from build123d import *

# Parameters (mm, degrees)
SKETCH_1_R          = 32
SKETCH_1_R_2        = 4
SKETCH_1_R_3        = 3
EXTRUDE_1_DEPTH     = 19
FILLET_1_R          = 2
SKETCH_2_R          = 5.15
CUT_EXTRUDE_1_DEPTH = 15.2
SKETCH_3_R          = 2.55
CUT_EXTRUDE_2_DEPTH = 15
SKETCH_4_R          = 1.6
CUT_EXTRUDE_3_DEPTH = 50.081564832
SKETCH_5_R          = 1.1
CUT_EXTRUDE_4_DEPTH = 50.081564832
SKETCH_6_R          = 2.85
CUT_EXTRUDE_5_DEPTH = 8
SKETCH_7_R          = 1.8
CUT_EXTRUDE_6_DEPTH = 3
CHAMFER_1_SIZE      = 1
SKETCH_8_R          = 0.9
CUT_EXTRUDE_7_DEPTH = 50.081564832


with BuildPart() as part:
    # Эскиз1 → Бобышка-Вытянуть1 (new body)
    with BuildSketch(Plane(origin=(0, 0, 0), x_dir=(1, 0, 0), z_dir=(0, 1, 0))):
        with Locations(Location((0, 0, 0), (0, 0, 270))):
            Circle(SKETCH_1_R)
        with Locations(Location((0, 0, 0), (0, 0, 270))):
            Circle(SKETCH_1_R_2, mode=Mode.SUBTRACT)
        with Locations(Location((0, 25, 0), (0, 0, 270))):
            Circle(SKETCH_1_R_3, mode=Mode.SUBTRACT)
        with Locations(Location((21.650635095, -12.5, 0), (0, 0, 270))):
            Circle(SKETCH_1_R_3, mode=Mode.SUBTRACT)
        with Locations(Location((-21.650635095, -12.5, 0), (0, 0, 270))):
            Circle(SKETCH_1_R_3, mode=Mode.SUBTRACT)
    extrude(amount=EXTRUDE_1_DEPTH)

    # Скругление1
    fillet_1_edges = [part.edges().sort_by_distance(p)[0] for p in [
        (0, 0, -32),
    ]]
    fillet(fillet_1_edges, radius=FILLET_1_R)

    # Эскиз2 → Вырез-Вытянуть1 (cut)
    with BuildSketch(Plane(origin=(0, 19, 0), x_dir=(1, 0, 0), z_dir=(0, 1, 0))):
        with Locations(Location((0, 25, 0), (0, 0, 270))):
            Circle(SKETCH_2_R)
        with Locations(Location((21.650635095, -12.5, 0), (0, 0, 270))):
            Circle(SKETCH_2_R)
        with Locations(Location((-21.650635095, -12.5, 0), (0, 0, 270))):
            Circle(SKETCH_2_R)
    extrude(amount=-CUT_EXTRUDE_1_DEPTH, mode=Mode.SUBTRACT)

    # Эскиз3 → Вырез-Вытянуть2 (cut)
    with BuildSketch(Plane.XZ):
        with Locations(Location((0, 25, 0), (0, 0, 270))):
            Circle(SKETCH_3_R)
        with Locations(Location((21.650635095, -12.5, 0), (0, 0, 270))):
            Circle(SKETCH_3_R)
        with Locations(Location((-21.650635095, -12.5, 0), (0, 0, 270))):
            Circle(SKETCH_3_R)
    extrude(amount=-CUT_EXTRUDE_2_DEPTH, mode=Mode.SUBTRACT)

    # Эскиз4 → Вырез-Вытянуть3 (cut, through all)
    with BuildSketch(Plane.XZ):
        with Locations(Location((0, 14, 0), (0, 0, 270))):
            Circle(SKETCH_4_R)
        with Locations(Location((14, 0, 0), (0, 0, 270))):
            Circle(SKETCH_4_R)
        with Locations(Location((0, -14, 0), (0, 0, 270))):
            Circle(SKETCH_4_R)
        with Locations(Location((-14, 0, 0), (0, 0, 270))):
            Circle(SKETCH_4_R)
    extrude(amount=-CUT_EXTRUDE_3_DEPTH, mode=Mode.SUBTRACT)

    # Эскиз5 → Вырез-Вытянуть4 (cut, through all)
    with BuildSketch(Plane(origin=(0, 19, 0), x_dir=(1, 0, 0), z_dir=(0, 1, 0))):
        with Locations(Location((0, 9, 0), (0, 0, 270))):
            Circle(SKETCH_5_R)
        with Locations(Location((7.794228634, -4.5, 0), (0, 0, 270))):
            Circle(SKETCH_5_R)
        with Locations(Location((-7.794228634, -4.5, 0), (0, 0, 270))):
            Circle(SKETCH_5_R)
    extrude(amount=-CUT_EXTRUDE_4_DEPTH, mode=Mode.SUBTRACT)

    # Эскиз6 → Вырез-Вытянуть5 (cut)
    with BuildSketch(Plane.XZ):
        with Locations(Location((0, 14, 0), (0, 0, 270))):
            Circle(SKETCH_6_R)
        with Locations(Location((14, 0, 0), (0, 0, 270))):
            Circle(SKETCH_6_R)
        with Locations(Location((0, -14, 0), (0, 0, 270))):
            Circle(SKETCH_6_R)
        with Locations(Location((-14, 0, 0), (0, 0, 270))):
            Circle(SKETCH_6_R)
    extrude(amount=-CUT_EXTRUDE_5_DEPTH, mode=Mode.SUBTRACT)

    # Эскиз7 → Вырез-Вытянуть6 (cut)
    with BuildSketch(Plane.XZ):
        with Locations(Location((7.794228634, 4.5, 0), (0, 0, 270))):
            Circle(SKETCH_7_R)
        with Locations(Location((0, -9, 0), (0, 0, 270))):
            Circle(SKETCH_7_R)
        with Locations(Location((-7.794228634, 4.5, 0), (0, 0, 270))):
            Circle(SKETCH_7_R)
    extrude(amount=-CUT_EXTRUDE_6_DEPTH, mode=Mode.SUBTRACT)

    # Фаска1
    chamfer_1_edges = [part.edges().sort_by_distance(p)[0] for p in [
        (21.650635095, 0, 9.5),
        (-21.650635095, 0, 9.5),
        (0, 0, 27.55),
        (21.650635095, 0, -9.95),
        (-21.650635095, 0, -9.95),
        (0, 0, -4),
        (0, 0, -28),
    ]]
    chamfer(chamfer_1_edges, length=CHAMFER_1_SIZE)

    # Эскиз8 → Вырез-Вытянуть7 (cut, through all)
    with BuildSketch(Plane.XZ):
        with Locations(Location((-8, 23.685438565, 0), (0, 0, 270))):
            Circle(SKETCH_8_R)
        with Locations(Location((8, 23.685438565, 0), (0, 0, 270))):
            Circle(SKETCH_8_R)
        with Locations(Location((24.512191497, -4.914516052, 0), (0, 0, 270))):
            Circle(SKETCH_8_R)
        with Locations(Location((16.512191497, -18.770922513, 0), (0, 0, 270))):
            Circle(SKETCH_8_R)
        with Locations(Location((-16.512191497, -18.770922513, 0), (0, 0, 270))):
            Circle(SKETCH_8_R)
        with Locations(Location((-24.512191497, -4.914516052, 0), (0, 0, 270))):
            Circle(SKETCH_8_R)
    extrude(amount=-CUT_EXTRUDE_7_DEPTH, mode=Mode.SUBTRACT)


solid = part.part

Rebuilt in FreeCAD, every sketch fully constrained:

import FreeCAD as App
import Part
import Sketcher
Q = App.Units.Quantity


def edges_at(feature, points):
    """Names of the edges that pass closest to the given points."""
    edges = feature.Shape.Edges
    near = lambda p: min(range(len(edges)), key=lambda i: edges[i].distToShape(Part.Vertex(*p))[0])
    return sorted({f"Edge{near(p) + 1}" for p in points})

doc = App.newDocument("Part")
params = doc.addObject("Spreadsheet::Sheet", "Params")
for row, (alias, value) in enumerate([
    ("sketch1_diameter", "64 mm"),
    ("sketch1_diameter2", "6 mm"),
    ("sketch1_diameter3", "8 mm"),
    ("pad1_length", "19 mm"),
    ("fillet_radius", "2 mm"),
    ("sketch2_diameter", "10.3 mm"),
    ("pocket1_length", "15.2 mm"),
    ("sketch3_diameter", "5.1 mm"),
    ("pocket2_length", "15 mm"),
    ("sketch4_diameter", "3.2 mm"),
    ("sketch5_diameter", "2.2 mm"),
    ("sketch6_diameter", "5.7 mm"),
    ("pocket5_length", "8 mm"),
    ("sketch7_diameter", "3.6 mm"),
    ("pocket6_length", "3 mm"),
    ("chamfer_size", "1 mm"),
    ("sketch8_diameter", "1.8 mm"),
], start=1):
    params.set(f"A{row}", alias)
    params.set(f"B{row}", "=" + value)
    params.setAlias(f"B{row}", alias)

body = doc.addObject("PartDesign::Body", "Body")

# Sketch on XZ plane
sketch1 = doc.addObject("Sketcher::SketchObject", "Sketch")
body.addObject(sketch1)
sketch1.AttachmentSupport = (doc.XZ_Plane, [""])
sketch1.MapMode = "FlatFace"
sketch1.addGeometry([
    Part.Circle(App.Vector(0, 0, 0), App.Vector(0, 0, 1), 32),  # 0
    Part.Circle(App.Vector(0, -25, 0), App.Vector(0, 0, 1), 3),  # 1
    Part.Circle(App.Vector(-21.7, 12.5, 0), App.Vector(0, 0, 1), 3),  # 2
    Part.Circle(App.Vector(0, 0, 0), App.Vector(0, 0, 1), 4),  # 3
    Part.Circle(App.Vector(21.7, 12.5, 0), App.Vector(0, 0, 1), 3),  # 4
], False)
sketch1.addConstraint([
    Sketcher.Constraint("Coincident", 0, 3, -1, 1),
    Sketcher.Constraint("Coincident", 3, 3, -1, 1),
    Sketcher.Constraint("Equal", 1, 2),
    Sketcher.Constraint("Equal", 2, 4),
    Sketcher.Constraint("Symmetric", 2, 3, 4, 3, -2),
    Sketcher.Constraint("PointOnObject", 1, 3, -2),
    Sketcher.Constraint("Diameter", 0, Q("64 mm")),
    Sketcher.Constraint("Diameter", 1, Q("6 mm")),
    Sketcher.Constraint("Diameter", 3, Q("8 mm")),
    Sketcher.Constraint("DistanceY", 1, 3, -1, 1, Q("25 mm")),
    Sketcher.Constraint("DistanceY", -1, 1, 2, 3, Q("12.5 mm")),
    Sketcher.Constraint("DistanceX", 2, 3, 4, 3, Q("43.30127 mm")),
])
sketch1.setExpression("Constraints[6]", "Params.sketch1_diameter")
sketch1.setExpression("Constraints[7]", "Params.sketch1_diameter2")
sketch1.setExpression("Constraints[8]", "Params.sketch1_diameter3")
pad1 = doc.addObject("PartDesign::Pad", "Pad")
body.addObject(pad1)
pad1.Profile = sketch1
pad1.setExpression("Length", "Params.pad1_length")
pad1.Reversed = True
doc.recompute()

fillet = doc.addObject("PartDesign::Fillet", "Fillet")
body.addObject(fillet)
fillet.Base = (pad1, edges_at(pad1, [(0, 0, -32)]))
fillet.setExpression("Radius", "Params.fillet_radius")

# Sketch on XZ plane
sketch2 = doc.addObject("Sketcher::SketchObject", "Sketch001")
body.addObject(sketch2)
sketch2.AttachmentSupport = (doc.XZ_Plane, [""])
sketch2.MapMode = "FlatFace"
sketch2.AttachmentOffset = App.Placement(App.Vector(0, 0, -19), App.Rotation())
sketch2.addGeometry([
    Part.Circle(App.Vector(0, -25, 0), App.Vector(0, 0, 1), 5),
    Part.Circle(App.Vector(22, 12, 0), App.Vector(0, 0, 1), 5),
    Part.Circle(App.Vector(-22, 12, 0), App.Vector(0, 0, 1), 5),
], False)
sketch2.addConstraint([
    Sketcher.Constraint("Equal", 0, 1),
    Sketcher.Constraint("Equal", 1, 2),
    Sketcher.Constraint("Symmetric", 1, 3, 2, 3, -2),
    Sketcher.Constraint("PointOnObject", 0, 3, -2),
    Sketcher.Constraint("Diameter", 0, Q("10.3 mm")),
    Sketcher.Constraint("DistanceY", 0, 3, -1, 1, Q("25 mm")),
    Sketcher.Constraint("DistanceY", -1, 1, 1, 3, Q("12.5 mm")),
    Sketcher.Constraint("DistanceX", 2, 3, 1, 3, Q("43.30127 mm")),
])
sketch2.setExpression("Constraints[4]", "Params.sketch2_diameter")
pocket1 = doc.addObject("PartDesign::Pocket", "Pocket")
body.addObject(pocket1)
pocket1.Profile = sketch2
pocket1.setExpression("Length", "Params.pocket1_length")
pocket1.Reversed = True

# Sketch on XZ plane
sketch3 = doc.addObject("Sketcher::SketchObject", "Sketch002")
body.addObject(sketch3)
sketch3.AttachmentSupport = (doc.XZ_Plane, [""])
sketch3.MapMode = "FlatFace"
sketch3.addGeometry([
    Part.Circle(App.Vector(0, 25, 0), App.Vector(0, 0, 1), 2.5),
    Part.Circle(App.Vector(21.7, -12.5, 0), App.Vector(0, 0, 1), 2.5),
    Part.Circle(App.Vector(-21.7, -12.5, 0), App.Vector(0, 0, 1), 2.5),
], False)
sketch3.addConstraint([
    Sketcher.Constraint("Equal", 0, 1),
    Sketcher.Constraint("Equal", 1, 2),
    Sketcher.Constraint("Symmetric", 1, 3, 2, 3, -2),
    Sketcher.Constraint("PointOnObject", 0, 3, -2),
    Sketcher.Constraint("Diameter", 0, Q("5.1 mm")),
    Sketcher.Constraint("DistanceY", -1, 1, 0, 3, Q("25 mm")),
    Sketcher.Constraint("DistanceY", 1, 3, -1, 1, Q("12.5 mm")),
    Sketcher.Constraint("DistanceX", 2, 3, 1, 3, Q("43.30127 mm")),
])
sketch3.setExpression("Constraints[4]", "Params.sketch3_diameter")
pocket2 = doc.addObject("PartDesign::Pocket", "Pocket001")
body.addObject(pocket2)
pocket2.Profile = sketch3
pocket2.setExpression("Length", "Params.pocket2_length")

# Sketch on XZ plane
sketch4 = doc.addObject("Sketcher::SketchObject", "Sketch003")
body.addObject(sketch4)
sketch4.AttachmentSupport = (doc.XZ_Plane, [""])
sketch4.MapMode = "FlatFace"
sketch4.addGeometry([
    Part.Circle(App.Vector(0, 14, 0), App.Vector(0, 0, 1), 1.6),
    Part.Circle(App.Vector(14, 0, 0), App.Vector(0, 0, 1), 1.6),
    Part.Circle(App.Vector(0, -14, 0), App.Vector(0, 0, 1), 1.6),
    Part.Circle(App.Vector(-14, 0, 0), App.Vector(0, 0, 1), 1.6),
], False)
sketch4.addConstraint([
    Sketcher.Constraint("Equal", 0, 1),
    Sketcher.Constraint("Equal", 1, 2),
    Sketcher.Constraint("Equal", 2, 3),
    Sketcher.Constraint("Symmetric", 0, 3, 2, 3, -1, 1),
    Sketcher.Constraint("Symmetric", 1, 3, 3, 3, -1, 1),
    Sketcher.Constraint("PointOnObject", 0, 3, -2),
    Sketcher.Constraint("PointOnObject", 1, 3, -1),
    Sketcher.Constraint("Diameter", 0, Q("3.2 mm")),
    Sketcher.Constraint("DistanceY", -1, 1, 0, 3, Q("14 mm")),
    Sketcher.Constraint("DistanceX", -1, 1, 1, 3, Q("14 mm")),
])
sketch4.setExpression("Constraints[7]", "Params.sketch4_diameter")
pocket3 = doc.addObject("PartDesign::Pocket", "Pocket002")
body.addObject(pocket3)
pocket3.Profile = sketch4
pocket3.Type = "ThroughAll"

# Sketch on XZ plane
sketch5 = doc.addObject("Sketcher::SketchObject", "Sketch004")
body.addObject(sketch5)
sketch5.AttachmentSupport = (doc.XZ_Plane, [""])
sketch5.MapMode = "FlatFace"
sketch5.AttachmentOffset = App.Placement(App.Vector(0, 0, -19), App.Rotation())
sketch5.addGeometry([
    Part.Circle(App.Vector(0, -9, 0), App.Vector(0, 0, 1), 1.1),
    Part.Circle(App.Vector(7.8, 4.5, 0), App.Vector(0, 0, 1), 1.1),
    Part.Circle(App.Vector(-7.8, 4.5, 0), App.Vector(0, 0, 1), 1.1),
], False)
sketch5.addConstraint([
    Sketcher.Constraint("Equal", 0, 1),
    Sketcher.Constraint("Equal", 1, 2),
    Sketcher.Constraint("Symmetric", 1, 3, 2, 3, -2),
    Sketcher.Constraint("PointOnObject", 0, 3, -2),
    Sketcher.Constraint("Diameter", 0, Q("2.2 mm")),
    Sketcher.Constraint("DistanceY", 0, 3, -1, 1, Q("9 mm")),
    Sketcher.Constraint("DistanceY", -1, 1, 1, 3, Q("4.5 mm")),
    Sketcher.Constraint("DistanceX", -1, 1, 1, 3, Q("7.794229 mm")),
])
sketch5.setExpression("Constraints[4]", "Params.sketch5_diameter")
pocket4 = doc.addObject("PartDesign::Pocket", "Pocket003")
body.addObject(pocket4)
pocket4.Profile = sketch5
pocket4.Type = "ThroughAll"
pocket4.Reversed = True

# Sketch on XZ plane
sketch6 = doc.addObject("Sketcher::SketchObject", "Sketch005")
body.addObject(sketch6)
sketch6.AttachmentSupport = (doc.XZ_Plane, [""])
sketch6.MapMode = "FlatFace"
sketch6.addGeometry([
    Part.Circle(App.Vector(0, 14, 0), App.Vector(0, 0, 1), 2.9),
    Part.Circle(App.Vector(14, 0, 0), App.Vector(0, 0, 1), 2.9),
    Part.Circle(App.Vector(0, -14, 0), App.Vector(0, 0, 1), 2.9),
    Part.Circle(App.Vector(-14, 0, 0), App.Vector(0, 0, 1), 2.9),
], False)
sketch6.addConstraint([
    Sketcher.Constraint("Equal", 0, 1),
    Sketcher.Constraint("Equal", 1, 2),
    Sketcher.Constraint("Equal", 2, 3),
    Sketcher.Constraint("Symmetric", 0, 3, 2, 3, -1, 1),
    Sketcher.Constraint("Symmetric", 1, 3, 3, 3, -1, 1),
    Sketcher.Constraint("PointOnObject", 0, 3, -2),
    Sketcher.Constraint("PointOnObject", 1, 3, -1),
    Sketcher.Constraint("Diameter", 0, Q("5.7 mm")),
    Sketcher.Constraint("DistanceY", -1, 1, 0, 3, Q("14 mm")),
    Sketcher.Constraint("DistanceX", -1, 1, 1, 3, Q("14 mm")),
])
sketch6.setExpression("Constraints[7]", "Params.sketch6_diameter")
pocket5 = doc.addObject("PartDesign::Pocket", "Pocket004")
body.addObject(pocket5)
pocket5.Profile = sketch6
pocket5.setExpression("Length", "Params.pocket5_length")

# Sketch on XZ plane
sketch7 = doc.addObject("Sketcher::SketchObject", "Sketch006")
body.addObject(sketch7)
sketch7.AttachmentSupport = (doc.XZ_Plane, [""])
sketch7.MapMode = "FlatFace"
sketch7.addGeometry([
    Part.Circle(App.Vector(7.8, 4.5, 0), App.Vector(0, 0, 1), 1.8),
    Part.Circle(App.Vector(0, -9, 0), App.Vector(0, 0, 1), 1.8),
    Part.Circle(App.Vector(-7.8, 4.5, 0), App.Vector(0, 0, 1), 1.8),
], False)
sketch7.addConstraint([
    Sketcher.Constraint("Equal", 0, 1),
    Sketcher.Constraint("Equal", 1, 2),
    Sketcher.Constraint("Symmetric", 0, 3, 2, 3, -2),
    Sketcher.Constraint("PointOnObject", 1, 3, -2),
    Sketcher.Constraint("Diameter", 0, Q("3.6 mm")),
    Sketcher.Constraint("DistanceY", 1, 3, -1, 1, Q("9 mm")),
    Sketcher.Constraint("DistanceY", -1, 1, 0, 3, Q("4.5 mm")),
    Sketcher.Constraint("DistanceX", -1, 1, 0, 3, Q("7.794229 mm")),
])
sketch7.setExpression("Constraints[4]", "Params.sketch7_diameter")
pocket6 = doc.addObject("PartDesign::Pocket", "Pocket005")
body.addObject(pocket6)
pocket6.Profile = sketch7
pocket6.setExpression("Length", "Params.pocket6_length")
doc.recompute()

chamfer = doc.addObject("PartDesign::Chamfer", "Chamfer")
body.addObject(chamfer)
chamfer.Base = (pocket6, edges_at(pocket6, [
    (21.651, 0, 9.5),
    (-21.651, 0, 9.5),
    (0, 0, 27.55),
    (21.651, 0, -9.95),
    (-21.651, 0, -9.95),
    (0, 0, -4),
    (0, 0, -28),
]))
chamfer.setExpression("Size", "Params.chamfer_size")

# Sketch on XZ plane
sketch8 = doc.addObject("Sketcher::SketchObject", "Sketch007")
body.addObject(sketch8)
sketch8.AttachmentSupport = (doc.XZ_Plane, [""])
sketch8.MapMode = "FlatFace"
sketch8.addGeometry([
    Part.Circle(App.Vector(-8, 23.7, 0), App.Vector(0, 0, 1), 0.9),  # 0
    Part.Circle(App.Vector(8, 23.7, 0), App.Vector(0, 0, 1), 0.9),  # 1
    Part.Circle(App.Vector(24.5, -4.9, 0), App.Vector(0, 0, 1), 0.9),  # 2
    Part.Circle(App.Vector(16.5, -18.8, 0), App.Vector(0, 0, 1), 0.9),  # 3
    Part.Circle(App.Vector(-16.5, -18.8, 0), App.Vector(0, 0, 1), 0.9),  # 4
    Part.Circle(App.Vector(-24.5, -4.9, 0), App.Vector(0, 0, 1), 0.9),  # 5
], False)
sketch8.addConstraint([
    Sketcher.Constraint("Equal", 0, 1),
    Sketcher.Constraint("Equal", 1, 2),
    Sketcher.Constraint("Equal", 2, 3),
    Sketcher.Constraint("Equal", 3, 4),
    Sketcher.Constraint("Equal", 4, 5),
    Sketcher.Constraint("Symmetric", 0, 3, 1, 3, -2),
    Sketcher.Constraint("Symmetric", 3, 3, 4, 3, -2),
    Sketcher.Constraint("Symmetric", 2, 3, 5, 3, -2),
    Sketcher.Constraint("Diameter", 0, Q("1.8 mm")),
    Sketcher.Constraint("DistanceX", 0, 3, -1, 1, Q("8 mm")),
    Sketcher.Constraint("DistanceX", 3, 3, 2, 3, Q("8 mm")),
    Sketcher.Constraint("DistanceY", -1, 1, 0, 3, Q("23.685439 mm")),
    Sketcher.Constraint("DistanceX", -1, 1, 2, 3, Q("24.512191 mm")),
    Sketcher.Constraint("DistanceY", 3, 3, 1, 3, Q("42.456361 mm")),
    Sketcher.Constraint("DistanceY", 2, 3, -1, 1, Q("4.914516 mm")),
])
sketch8.setExpression("Constraints[8]", "Params.sketch8_diameter")
pocket7 = doc.addObject("PartDesign::Pocket", "Pocket006")
body.addObject(pocket7)
pocket7.Profile = sketch8
pocket7.Type = "ThroughAll"

doc.recompute()
